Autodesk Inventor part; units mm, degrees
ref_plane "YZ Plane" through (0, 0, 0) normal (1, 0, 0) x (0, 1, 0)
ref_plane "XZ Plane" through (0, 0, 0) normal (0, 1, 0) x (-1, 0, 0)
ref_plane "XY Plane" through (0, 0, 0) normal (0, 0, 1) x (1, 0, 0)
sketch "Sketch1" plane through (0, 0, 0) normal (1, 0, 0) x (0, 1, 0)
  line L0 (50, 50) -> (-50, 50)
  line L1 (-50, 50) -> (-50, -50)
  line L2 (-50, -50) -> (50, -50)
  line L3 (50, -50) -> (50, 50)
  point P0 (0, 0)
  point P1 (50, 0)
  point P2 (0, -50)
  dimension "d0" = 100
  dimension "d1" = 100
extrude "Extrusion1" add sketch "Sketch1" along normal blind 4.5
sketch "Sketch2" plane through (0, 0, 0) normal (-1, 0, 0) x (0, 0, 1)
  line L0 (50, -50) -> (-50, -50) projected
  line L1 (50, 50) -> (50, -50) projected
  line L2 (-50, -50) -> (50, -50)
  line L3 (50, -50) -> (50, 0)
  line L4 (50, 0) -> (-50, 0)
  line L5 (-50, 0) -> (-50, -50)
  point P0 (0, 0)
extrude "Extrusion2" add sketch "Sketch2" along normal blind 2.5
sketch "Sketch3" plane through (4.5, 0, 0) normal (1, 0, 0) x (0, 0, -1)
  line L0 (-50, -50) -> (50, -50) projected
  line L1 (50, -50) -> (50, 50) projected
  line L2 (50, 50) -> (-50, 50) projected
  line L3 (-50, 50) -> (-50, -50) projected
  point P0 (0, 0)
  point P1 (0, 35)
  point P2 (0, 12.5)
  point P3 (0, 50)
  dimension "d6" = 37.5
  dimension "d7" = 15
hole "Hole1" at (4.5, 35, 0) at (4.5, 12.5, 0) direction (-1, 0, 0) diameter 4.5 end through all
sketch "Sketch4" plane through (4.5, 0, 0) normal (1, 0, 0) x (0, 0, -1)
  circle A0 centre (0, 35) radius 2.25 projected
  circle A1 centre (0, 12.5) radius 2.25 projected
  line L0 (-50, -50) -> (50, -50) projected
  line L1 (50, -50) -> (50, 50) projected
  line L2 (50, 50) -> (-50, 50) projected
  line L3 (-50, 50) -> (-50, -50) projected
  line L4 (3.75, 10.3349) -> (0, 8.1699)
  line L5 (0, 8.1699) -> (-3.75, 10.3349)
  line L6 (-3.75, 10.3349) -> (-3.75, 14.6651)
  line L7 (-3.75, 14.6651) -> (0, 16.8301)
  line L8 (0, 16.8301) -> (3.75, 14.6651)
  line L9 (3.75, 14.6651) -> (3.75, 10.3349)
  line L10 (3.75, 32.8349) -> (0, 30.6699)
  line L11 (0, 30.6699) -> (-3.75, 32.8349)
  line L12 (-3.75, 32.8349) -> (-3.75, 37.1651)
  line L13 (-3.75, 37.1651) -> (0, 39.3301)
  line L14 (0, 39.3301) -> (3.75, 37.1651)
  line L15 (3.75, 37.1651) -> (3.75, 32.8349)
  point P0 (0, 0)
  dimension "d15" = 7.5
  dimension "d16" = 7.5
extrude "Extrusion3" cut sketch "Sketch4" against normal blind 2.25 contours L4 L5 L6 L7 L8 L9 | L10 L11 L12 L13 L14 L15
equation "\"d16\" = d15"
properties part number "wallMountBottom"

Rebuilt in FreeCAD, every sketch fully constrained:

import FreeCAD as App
import Part
import Sketcher
Q = App.Units.Quantity


def add_polygon(sketch, points):
    """Adds a closed chain of lines whose ends are joined by coincident constraints."""
    first, n = sketch.GeometryCount, len(points)
    for a, b in zip(points, points[1:] + points[:1]):
        sketch.addGeometry(Part.LineSegment(App.Vector(*a, 0), App.Vector(*b, 0)), False)
    for i in range(n):
        sketch.addConstraint(Sketcher.Constraint("Coincident", first + i, 2, first + (i + 1) % n, 1))

doc = App.newDocument("Part")
params = doc.addObject("Spreadsheet::Sheet", "Params")
for row, (alias, value) in enumerate([
    ("sketch1_width", "100 mm"),
    ("pad1_length", "4.5 mm"),
    ("sketch2_width", "50 mm"),
    ("sketch2_height", "100 mm"),
    ("pad2_length", "2.5 mm"),
    ("sketch3_diameter", "4.5 mm"),
    ("hole_diameter", "4.5 mm"),
    ("sketch4_diameter", "4.5 mm"),
    ("pocket1_length", "2.25 mm"),
], start=1):
    params.set(f"A{row}", alias)
    params.set(f"B{row}", "=" + value)
    params.setAlias(f"B{row}", alias)

body = doc.addObject("PartDesign::Body", "Body")

sketch1 = body.newObject("Sketcher::SketchObject", "Sketch")
sketch1.AttachmentSupport = (doc.getObject("YZ_Plane"), [""])
sketch1.MapMode = "FlatFace"
add_polygon(sketch1, [(50, -50), (50, 50), (-50, 50), (-50, -50)])
sketch1.addConstraint(Sketcher.Constraint("Vertical", 0))
sketch1.addConstraint(Sketcher.Constraint("Horizontal", 1))
sketch1.addConstraint(Sketcher.Constraint("Vertical", 2))
sketch1.addConstraint(Sketcher.Constraint("Horizontal", 3))
sketch1.addConstraint(Sketcher.Constraint("Symmetric", 0, 2, 2, 2, -1, 1))
sketch1.addConstraint(Sketcher.Constraint("Equal", 3, 0))
sketch1.addConstraint(Sketcher.Constraint("DistanceX", 1, 2, 1, 1, 100.0))
sketch1.setExpression("Constraints[10]", "Params.sketch1_width")
pad1 = body.newObject("PartDesign::Pad", "Pad")
pad1.Profile = sketch1
pad1.setExpression("Length", "Params.pad1_length")

sketch2 = body.newObject("Sketcher::SketchObject", "Sketch001")
sketch2.AttachmentSupport = (doc.getObject("YZ_Plane"), [""])
sketch2.MapMode = "FlatFace"
add_polygon(sketch2, [(-50, -50), (-50, 50), (0, 50), (0, -50)])
sketch2.addConstraint(Sketcher.Constraint("Vertical", 0))
sketch2.addConstraint(Sketcher.Constraint("Horizontal", 1))
sketch2.addConstraint(Sketcher.Constraint("Vertical", 2))
sketch2.addConstraint(Sketcher.Constraint("Horizontal", 3))
sketch2.addConstraint(Sketcher.Constraint("Symmetric", 1, 2, 2, 2, -1, 1))
sketch2.addConstraint(Sketcher.Constraint("DistanceX", 1, 1, 1, 2, 50.0))
sketch2.addConstraint(Sketcher.Constraint("DistanceY", 0, 1, 0, 2, 100.0))
sketch2.setExpression("Constraints[9]", "Params.sketch2_width")
sketch2.setExpression("Constraints[10]", "Params.sketch2_height")
pad2 = body.newObject("PartDesign::Pad", "Pad001")
pad2.Profile = sketch2
pad2.setExpression("Length", "Params.pad2_length")
pad2.Reversed = True

sketch3 = body.newObject("Sketcher::SketchObject", "Sketch002")
sketch3.AttachmentSupport = (doc.getObject("YZ_Plane"), [""])
sketch3.MapMode = "FlatFace"
sketch3.AttachmentOffset = App.Placement(App.Vector(0, 0, 4.5), App.Rotation())
sketch3.addGeometry(Part.Circle(App.Vector(35, 0, 0), App.Vector(0, 0, 1), 2.25), False)
sketch3.addGeometry(Part.Circle(App.Vector(12.5, 0, 0), App.Vector(0, 0, 1), 2.25), False)
sketch3.addConstraint(Sketcher.Constraint("Equal", 0, 1))
sketch3.addConstraint(Sketcher.Constraint("PointOnObject", 0, 3, -1))
sketch3.addConstraint(Sketcher.Constraint("PointOnObject", 1, 3, -1))
sketch3.addConstraint(Sketcher.Constraint("Diameter", 0, 4.5))
sketch3.addConstraint(Sketcher.Constraint("DistanceX", -1, 1, 0, 3, 35.0))
sketch3.addConstraint(Sketcher.Constraint("DistanceX", -1, 1, 1, 3, 12.5))
sketch3.setExpression("Constraints[3]", "Params.sketch3_diameter")
doc.recompute()
hole = body.newObject("PartDesign::Hole", "Hole")
hole.Profile = sketch3
hole.ThreadType = "None"
hole.setExpression("Diameter", "Params.hole_diameter")
hole.DepthType = "ThroughAll"

sketch4 = body.newObject("Sketcher::SketchObject", "Sketch003")
sketch4.AttachmentSupport = (doc.getObject("YZ_Plane"), [""])
sketch4.MapMode = "FlatFace"
sketch4.AttachmentOffset = App.Placement(App.Vector(0, 0, 4.5), App.Rotation())
add_polygon(sketch4, [(8.1699, 0), (10.3349, -3.75), (14.6651, -3.75), (16.8301, 0), (14.6651, 3.75), (10.3349, 3.75)])
sketch4.addGeometry(Part.Circle(App.Vector(12.5, 0, 0), App.Vector(0, 0, 1), 2.25), False)
add_polygon(sketch4, [(30.6699, 0), (32.8349, -3.75), (37.1651, -3.75), (39.3301, 0), (37.1651, 3.75), (32.8349, 3.75)])
sketch4.addGeometry(Part.Circle(App.Vector(35, 0, 0), App.Vector(0, 0, 1), 2.25), False)
sketch4.addConstraint(Sketcher.Constraint("Horizontal", 1))
sketch4.addConstraint(Sketcher.Constraint("Horizontal", 4))
sketch4.addConstraint(Sketcher.Constraint("Horizontal", 8))
sketch4.addConstraint(Sketcher.Constraint("Horizontal", 11))
sketch4.addConstraint(Sketcher.Constraint("Equal", 6, 13))
sketch4.addConstraint(Sketcher.Constraint("Symmetric", 1, 2, 3, 2, -1))
sketch4.addConstraint(Sketcher.Constraint("Symmetric", 8, 2, 10, 2, -1))
sketch4.addConstraint(Sketcher.Constraint("PointOnObject", 6, 3, -1))
sketch4.addConstraint(Sketcher.Constraint("PointOnObject", 13, 3, -1))
sketch4.addConstraint(Sketcher.Constraint("PointOnObject", 2, 2, -1))
sketch4.addConstraint(Sketcher.Constraint("PointOnObject", 5, 2, -1))
sketch4.addConstraint(Sketcher.Constraint("PointOnObject", 9, 2, -1))
sketch4.addConstraint(Sketcher.Constraint("PointOnObject", 12, 2, -1))
sketch4.addConstraint(Sketcher.Constraint("Parallel", 0, 3))
sketch4.addConstraint(Sketcher.Constraint("Parallel", 2, 5))
sketch4.addConstraint(Sketcher.Constraint("Parallel", 3, 7))
sketch4.addConstraint(Sketcher.Constraint("Parallel", 5, 9))
sketch4.addConstraint(Sketcher.Constraint("Parallel", 9, 12))
sketch4.addConstraint(Sketcher.Constraint("Horizontal", 1, 2, 7, 2))
sketch4.addConstraint(Sketcher.Constraint("Equal", 4, 8))
sketch4.addConstraint(Sketcher.Constraint("Diameter", 6, 4.5))
sketch4.addConstraint(Sketcher.Constraint("DistanceY", 1, 2, 3, 2, 7.5))
sketch4.addConstraint(Sketcher.Constraint("Angle", 0, Q("-60.0007 deg")))
sketch4.addConstraint(Sketcher.Constraint("DistanceX", -1, 1, 13, 3, 35.0))
sketch4.addConstraint(Sketcher.Constraint("DistanceX", -1, 1, 6, 3, 12.5))
sketch4.addConstraint(Sketcher.Constraint("DistanceX", 1, 2, 8, 2, 22.5))
sketch4.addConstraint(Sketcher.Constraint("DistanceX", -1, 1, 2, 2, 16.83))
sketch4.addConstraint(Sketcher.Constraint("DistanceX", -1, 1, 5, 2, 8.17))
sketch4.setExpression("Constraints[32]", "Params.sketch4_diameter")
pocket1 = body.newObject("PartDesign::Pocket", "Pocket")
pocket1.Profile = sketch4
pocket1.setExpression("Length", "Params.pocket1_length")

doc.recompute()
